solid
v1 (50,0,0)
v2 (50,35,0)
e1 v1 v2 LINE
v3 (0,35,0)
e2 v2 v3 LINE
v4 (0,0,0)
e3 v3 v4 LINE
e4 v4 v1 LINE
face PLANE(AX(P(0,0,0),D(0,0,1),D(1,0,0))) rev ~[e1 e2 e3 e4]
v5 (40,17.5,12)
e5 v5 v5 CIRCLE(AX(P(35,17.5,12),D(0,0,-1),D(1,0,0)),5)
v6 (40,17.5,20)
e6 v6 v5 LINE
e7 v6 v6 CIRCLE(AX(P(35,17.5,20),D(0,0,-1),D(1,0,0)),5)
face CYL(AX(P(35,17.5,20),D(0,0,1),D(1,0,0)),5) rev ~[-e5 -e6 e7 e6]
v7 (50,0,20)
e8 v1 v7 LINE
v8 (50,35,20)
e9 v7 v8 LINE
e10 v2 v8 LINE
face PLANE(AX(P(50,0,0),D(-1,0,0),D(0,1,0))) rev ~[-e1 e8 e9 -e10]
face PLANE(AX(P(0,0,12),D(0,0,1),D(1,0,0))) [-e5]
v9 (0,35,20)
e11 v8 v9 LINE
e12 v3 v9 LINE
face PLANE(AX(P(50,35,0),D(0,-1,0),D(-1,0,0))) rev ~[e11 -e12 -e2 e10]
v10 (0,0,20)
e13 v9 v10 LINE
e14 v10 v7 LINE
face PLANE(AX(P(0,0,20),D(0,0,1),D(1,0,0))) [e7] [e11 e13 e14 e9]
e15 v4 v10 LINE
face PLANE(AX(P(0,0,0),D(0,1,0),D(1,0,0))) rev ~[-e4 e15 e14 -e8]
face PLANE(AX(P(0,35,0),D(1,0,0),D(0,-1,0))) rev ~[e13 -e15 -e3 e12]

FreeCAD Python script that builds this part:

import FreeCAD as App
import Part
import Sketcher

doc = App.newDocument("Part")
body = doc.addObject("PartDesign::Body", "Body")

sketch1 = body.newObject("Sketcher::SketchObject", "Sketch")
sketch1.AttachmentSupport = (doc.getObject("XY_Plane"), [""])
sketch1.MapMode = "FlatFace"
sketch1.addGeometry(Part.LineSegment(App.Vector(0, 35, 0), App.Vector(0, 0, 0)), False)
sketch1.addGeometry(Part.LineSegment(App.Vector(0, 0, 0), App.Vector(50, 0, 0)), False)
sketch1.addGeometry(Part.LineSegment(App.Vector(50, 0, 0), App.Vector(50, 35, 0)), False)
sketch1.addGeometry(Part.LineSegment(App.Vector(50, 35, 0), App.Vector(0, 35, 0)), False)
sketch1.addConstraint(Sketcher.Constraint("Coincident", 0, 2, 1, 1))
sketch1.addConstraint(Sketcher.Constraint("Coincident", 1, 2, 2, 1))
sketch1.addConstraint(Sketcher.Constraint("Coincident", 2, 2, 3, 1))
sketch1.addConstraint(Sketcher.Constraint("Coincident", 3, 2, 0, 1))
sketch1.addConstraint(Sketcher.Constraint("Vertical", 0))
sketch1.addConstraint(Sketcher.Constraint("Horizontal", 1))
sketch1.addConstraint(Sketcher.Constraint("Vertical", 2))
sketch1.addConstraint(Sketcher.Constraint("Horizontal", 3))
sketch1.addConstraint(Sketcher.Constraint("Coincident", 0, 2, -1, 1))
sketch1.addConstraint(Sketcher.Constraint("DistanceX", 1, 1, 1, 2, 50.0))
sketch1.addConstraint(Sketcher.Constraint("DistanceY", 0, 2, 0, 1, 35.0))
pad1 = body.newObject("PartDesign::Pad", "Pad")
pad1.Profile = sketch1
pad1.Length = 20

sketch2 = body.newObject("Sketcher::SketchObject", "Sketch001")
sketch2.AttachmentSupport = (doc.getObject("XY_Plane"), [""])
sketch2.MapMode = "FlatFace"
sketch2.AttachmentOffset = App.Placement(App.Vector(0, 0, 20), App.Rotation())
sketch2.addGeometry(Part.Circle(App.Vector(35, 18, 0), App.Vector(0, 0, 1), 5), False)
sketch2.addConstraint(Sketcher.Constraint("Diameter", 0, 10.0))
sketch2.addConstraint(Sketcher.Constraint("DistanceX", -1, 1, 0, 3, 35.0))
sketch2.addConstraint(Sketcher.Constraint("DistanceY", -1, 1, 0, 3, 17.5))
pocket1 = body.newObject("PartDesign::Pocket", "Pocket")
pocket1.Profile = sketch2
pocket1.Length = 8

doc.recompute()
